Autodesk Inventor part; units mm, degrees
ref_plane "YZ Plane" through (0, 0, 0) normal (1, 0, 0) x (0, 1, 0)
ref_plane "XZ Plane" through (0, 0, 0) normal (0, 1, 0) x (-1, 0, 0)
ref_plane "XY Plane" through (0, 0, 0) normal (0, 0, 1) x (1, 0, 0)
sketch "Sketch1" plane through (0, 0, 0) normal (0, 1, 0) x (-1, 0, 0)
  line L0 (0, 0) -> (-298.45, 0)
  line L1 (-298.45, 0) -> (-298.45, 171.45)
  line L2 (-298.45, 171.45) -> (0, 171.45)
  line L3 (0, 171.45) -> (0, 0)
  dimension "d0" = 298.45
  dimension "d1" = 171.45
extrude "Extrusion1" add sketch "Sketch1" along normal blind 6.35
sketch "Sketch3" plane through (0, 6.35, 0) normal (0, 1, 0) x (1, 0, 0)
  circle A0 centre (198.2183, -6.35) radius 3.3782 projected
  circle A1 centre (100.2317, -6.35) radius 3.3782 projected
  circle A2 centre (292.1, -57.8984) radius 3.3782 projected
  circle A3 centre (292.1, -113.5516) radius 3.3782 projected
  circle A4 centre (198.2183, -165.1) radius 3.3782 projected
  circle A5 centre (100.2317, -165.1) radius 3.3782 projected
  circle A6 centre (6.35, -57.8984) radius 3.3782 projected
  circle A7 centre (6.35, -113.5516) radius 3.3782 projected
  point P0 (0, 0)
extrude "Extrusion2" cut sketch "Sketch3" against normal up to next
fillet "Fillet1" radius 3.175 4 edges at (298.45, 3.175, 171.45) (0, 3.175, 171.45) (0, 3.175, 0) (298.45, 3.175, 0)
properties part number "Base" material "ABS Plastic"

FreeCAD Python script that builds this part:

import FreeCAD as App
import Part
import Sketcher
from FreeCAD import Vector
Q = App.Units.Quantity


def edges_at(feature, points):
    """Names of the edges that pass closest to the given points."""
    edges = feature.Shape.Edges
    near = lambda p: min(range(len(edges)), key=lambda i: edges[i].distToShape(Part.Vertex(*p))[0])
    return sorted({f"Edge{near(p) + 1}" for p in points})

doc = App.newDocument("Part")
body = doc.addObject("PartDesign::Body", "Body")

# Sketch on XZ plane
sketch1 = doc.addObject("Sketcher::SketchObject", "Sketch")
body.addObject(sketch1)
sketch1.AttachmentSupport = (doc.XZ_Plane, [""])
sketch1.MapMode = "FlatFace"
sketch1.addGeometry([
    Part.LineSegment(Vector(298, 0, 0), Vector(0, 0, 0)),
    Part.LineSegment(Vector(0, 0, 0), Vector(0, 171, 0)),
    Part.LineSegment(Vector(0, 171, 0), Vector(298, 171, 0)),
    Part.LineSegment(Vector(298, 171, 0), Vector(298, 0, 0)),
], False)
sketch1.addConstraint([
    Sketcher.Constraint("Coincident", 0, 2, 1, 1),
    Sketcher.Constraint("Coincident", 1, 2, 2, 1),
    Sketcher.Constraint("Coincident", 2, 2, 3, 1),
    Sketcher.Constraint("Coincident", 3, 2, 0, 1),
    Sketcher.Constraint("Horizontal", 0),
    Sketcher.Constraint("Vertical", 1),
    Sketcher.Constraint("Horizontal", 2),
    Sketcher.Constraint("Vertical", 3),
    Sketcher.Constraint("Coincident", 0, 2, -1, 1),
    Sketcher.Constraint("DistanceX", 0, 2, 0, 1, Q("11.75 in")),
    Sketcher.Constraint("DistanceY", 1, 1, 1, 2, Q("6.75 in")),
])
pad1 = doc.addObject("PartDesign::Pad", "Pad")
body.addObject(pad1)
pad1.Profile = sketch1
pad1.Length = Q("0.25 in")
pad1.Reversed = True

# Sketch on XZ plane
sketch2 = doc.addObject("Sketcher::SketchObject", "Sketch001")
body.addObject(sketch2)
sketch2.AttachmentSupport = (doc.XZ_Plane, [""])
sketch2.MapMode = "FlatFace"
sketch2.AttachmentOffset = App.Placement(Vector(0, 0, -0.25 * 25.4), App.Rotation())
sketch2.addGeometry([
    Part.Circle(Vector(198.2, 6.3, 0), Vector(0, 0, 1), 3.4),  # 0
    Part.Circle(Vector(100.2, 6.3, 0), Vector(0, 0, 1), 3.4),  # 1
    Part.Circle(Vector(292.1, 57.9, 0), Vector(0, 0, 1), 3.4),  # 2
    Part.Circle(Vector(292.1, 113.6, 0), Vector(0, 0, 1), 3.4),  # 3
    Part.Circle(Vector(198.2, 165.1, 0), Vector(0, 0, 1), 3.4),  # 4
    Part.Circle(Vector(100.2, 165.1, 0), Vector(0, 0, 1), 3.4),  # 5
    Part.Circle(Vector(6.3, 57.9, 0), Vector(0, 0, 1), 3.4),  # 6
    Part.Circle(Vector(6.3, 113.6, 0), Vector(0, 0, 1), 3.4),  # 7
], False)
sketch2.addConstraint([
    Sketcher.Constraint("Equal", 0, 1),
    Sketcher.Constraint("Equal", 1, 2),
    Sketcher.Constraint("Equal", 2, 3),
    Sketcher.Constraint("Equal", 3, 4),
    Sketcher.Constraint("Equal", 4, 5),
    Sketcher.Constraint("Equal", 5, 6),
    Sketcher.Constraint("Equal", 6, 7),
    Sketcher.Constraint("Horizontal", 0, 3, 1, 3),
    Sketcher.Constraint("Horizontal", 4, 3, 5, 3),
    Sketcher.Constraint("Horizontal", 2, 3, 6, 3),
    Sketcher.Constraint("Horizontal", 3, 3, 7, 3),
    Sketcher.Constraint("Vertical", 2, 3, 3, 3),
    Sketcher.Constraint("Vertical", 0, 3, 4, 3),
    Sketcher.Constraint("Vertical", 1, 3, 5, 3),
    Sketcher.Constraint("Vertical", 6, 3, 7, 3),
    Sketcher.Constraint("Diameter", 0, Q("0.266 in")),
    Sketcher.Constraint("DistanceX", -1, 1, 2, 3, Q("11.5 in")),
    Sketcher.Constraint("DistanceY", -1, 1, 4, 3, Q("6.5 in")),
    Sketcher.Constraint("DistanceY", -1, 1, 0, 3, Q("0.25 in")),
    Sketcher.Constraint("DistanceX", -1, 1, 6, 3, Q("0.25 in")),
    Sketcher.Constraint("DistanceX", -1, 1, 0, 3, Q("198.2183 mm")),
    Sketcher.Constraint("DistanceX", -1, 1, 1, 3, Q("100.2317 mm")),
    Sketcher.Constraint("DistanceY", -1, 1, 2, 3, Q("57.8984 mm")),
    Sketcher.Constraint("DistanceY", -1, 1, 3, 3, Q("113.5516 mm")),
])
pocket1 = doc.addObject("PartDesign::Pocket", "Pocket")
body.addObject(pocket1)
pocket1.Profile = sketch2
pocket1.Type = "UpToFirst"
pocket1.Reversed = True
doc.recompute()

fillet = doc.addObject("PartDesign::Fillet", "Fillet")
body.addObject(fillet)
fillet.Base = (pocket1, edges_at(pocket1, [
    (298.45, 3.175, 171.45),
    (0, 3.175, 171.45),
    (0, 3.175, 0),
    (298.45, 3.175, 0),
]))
fillet.Radius = Q("0.125 in")

doc.recompute()
